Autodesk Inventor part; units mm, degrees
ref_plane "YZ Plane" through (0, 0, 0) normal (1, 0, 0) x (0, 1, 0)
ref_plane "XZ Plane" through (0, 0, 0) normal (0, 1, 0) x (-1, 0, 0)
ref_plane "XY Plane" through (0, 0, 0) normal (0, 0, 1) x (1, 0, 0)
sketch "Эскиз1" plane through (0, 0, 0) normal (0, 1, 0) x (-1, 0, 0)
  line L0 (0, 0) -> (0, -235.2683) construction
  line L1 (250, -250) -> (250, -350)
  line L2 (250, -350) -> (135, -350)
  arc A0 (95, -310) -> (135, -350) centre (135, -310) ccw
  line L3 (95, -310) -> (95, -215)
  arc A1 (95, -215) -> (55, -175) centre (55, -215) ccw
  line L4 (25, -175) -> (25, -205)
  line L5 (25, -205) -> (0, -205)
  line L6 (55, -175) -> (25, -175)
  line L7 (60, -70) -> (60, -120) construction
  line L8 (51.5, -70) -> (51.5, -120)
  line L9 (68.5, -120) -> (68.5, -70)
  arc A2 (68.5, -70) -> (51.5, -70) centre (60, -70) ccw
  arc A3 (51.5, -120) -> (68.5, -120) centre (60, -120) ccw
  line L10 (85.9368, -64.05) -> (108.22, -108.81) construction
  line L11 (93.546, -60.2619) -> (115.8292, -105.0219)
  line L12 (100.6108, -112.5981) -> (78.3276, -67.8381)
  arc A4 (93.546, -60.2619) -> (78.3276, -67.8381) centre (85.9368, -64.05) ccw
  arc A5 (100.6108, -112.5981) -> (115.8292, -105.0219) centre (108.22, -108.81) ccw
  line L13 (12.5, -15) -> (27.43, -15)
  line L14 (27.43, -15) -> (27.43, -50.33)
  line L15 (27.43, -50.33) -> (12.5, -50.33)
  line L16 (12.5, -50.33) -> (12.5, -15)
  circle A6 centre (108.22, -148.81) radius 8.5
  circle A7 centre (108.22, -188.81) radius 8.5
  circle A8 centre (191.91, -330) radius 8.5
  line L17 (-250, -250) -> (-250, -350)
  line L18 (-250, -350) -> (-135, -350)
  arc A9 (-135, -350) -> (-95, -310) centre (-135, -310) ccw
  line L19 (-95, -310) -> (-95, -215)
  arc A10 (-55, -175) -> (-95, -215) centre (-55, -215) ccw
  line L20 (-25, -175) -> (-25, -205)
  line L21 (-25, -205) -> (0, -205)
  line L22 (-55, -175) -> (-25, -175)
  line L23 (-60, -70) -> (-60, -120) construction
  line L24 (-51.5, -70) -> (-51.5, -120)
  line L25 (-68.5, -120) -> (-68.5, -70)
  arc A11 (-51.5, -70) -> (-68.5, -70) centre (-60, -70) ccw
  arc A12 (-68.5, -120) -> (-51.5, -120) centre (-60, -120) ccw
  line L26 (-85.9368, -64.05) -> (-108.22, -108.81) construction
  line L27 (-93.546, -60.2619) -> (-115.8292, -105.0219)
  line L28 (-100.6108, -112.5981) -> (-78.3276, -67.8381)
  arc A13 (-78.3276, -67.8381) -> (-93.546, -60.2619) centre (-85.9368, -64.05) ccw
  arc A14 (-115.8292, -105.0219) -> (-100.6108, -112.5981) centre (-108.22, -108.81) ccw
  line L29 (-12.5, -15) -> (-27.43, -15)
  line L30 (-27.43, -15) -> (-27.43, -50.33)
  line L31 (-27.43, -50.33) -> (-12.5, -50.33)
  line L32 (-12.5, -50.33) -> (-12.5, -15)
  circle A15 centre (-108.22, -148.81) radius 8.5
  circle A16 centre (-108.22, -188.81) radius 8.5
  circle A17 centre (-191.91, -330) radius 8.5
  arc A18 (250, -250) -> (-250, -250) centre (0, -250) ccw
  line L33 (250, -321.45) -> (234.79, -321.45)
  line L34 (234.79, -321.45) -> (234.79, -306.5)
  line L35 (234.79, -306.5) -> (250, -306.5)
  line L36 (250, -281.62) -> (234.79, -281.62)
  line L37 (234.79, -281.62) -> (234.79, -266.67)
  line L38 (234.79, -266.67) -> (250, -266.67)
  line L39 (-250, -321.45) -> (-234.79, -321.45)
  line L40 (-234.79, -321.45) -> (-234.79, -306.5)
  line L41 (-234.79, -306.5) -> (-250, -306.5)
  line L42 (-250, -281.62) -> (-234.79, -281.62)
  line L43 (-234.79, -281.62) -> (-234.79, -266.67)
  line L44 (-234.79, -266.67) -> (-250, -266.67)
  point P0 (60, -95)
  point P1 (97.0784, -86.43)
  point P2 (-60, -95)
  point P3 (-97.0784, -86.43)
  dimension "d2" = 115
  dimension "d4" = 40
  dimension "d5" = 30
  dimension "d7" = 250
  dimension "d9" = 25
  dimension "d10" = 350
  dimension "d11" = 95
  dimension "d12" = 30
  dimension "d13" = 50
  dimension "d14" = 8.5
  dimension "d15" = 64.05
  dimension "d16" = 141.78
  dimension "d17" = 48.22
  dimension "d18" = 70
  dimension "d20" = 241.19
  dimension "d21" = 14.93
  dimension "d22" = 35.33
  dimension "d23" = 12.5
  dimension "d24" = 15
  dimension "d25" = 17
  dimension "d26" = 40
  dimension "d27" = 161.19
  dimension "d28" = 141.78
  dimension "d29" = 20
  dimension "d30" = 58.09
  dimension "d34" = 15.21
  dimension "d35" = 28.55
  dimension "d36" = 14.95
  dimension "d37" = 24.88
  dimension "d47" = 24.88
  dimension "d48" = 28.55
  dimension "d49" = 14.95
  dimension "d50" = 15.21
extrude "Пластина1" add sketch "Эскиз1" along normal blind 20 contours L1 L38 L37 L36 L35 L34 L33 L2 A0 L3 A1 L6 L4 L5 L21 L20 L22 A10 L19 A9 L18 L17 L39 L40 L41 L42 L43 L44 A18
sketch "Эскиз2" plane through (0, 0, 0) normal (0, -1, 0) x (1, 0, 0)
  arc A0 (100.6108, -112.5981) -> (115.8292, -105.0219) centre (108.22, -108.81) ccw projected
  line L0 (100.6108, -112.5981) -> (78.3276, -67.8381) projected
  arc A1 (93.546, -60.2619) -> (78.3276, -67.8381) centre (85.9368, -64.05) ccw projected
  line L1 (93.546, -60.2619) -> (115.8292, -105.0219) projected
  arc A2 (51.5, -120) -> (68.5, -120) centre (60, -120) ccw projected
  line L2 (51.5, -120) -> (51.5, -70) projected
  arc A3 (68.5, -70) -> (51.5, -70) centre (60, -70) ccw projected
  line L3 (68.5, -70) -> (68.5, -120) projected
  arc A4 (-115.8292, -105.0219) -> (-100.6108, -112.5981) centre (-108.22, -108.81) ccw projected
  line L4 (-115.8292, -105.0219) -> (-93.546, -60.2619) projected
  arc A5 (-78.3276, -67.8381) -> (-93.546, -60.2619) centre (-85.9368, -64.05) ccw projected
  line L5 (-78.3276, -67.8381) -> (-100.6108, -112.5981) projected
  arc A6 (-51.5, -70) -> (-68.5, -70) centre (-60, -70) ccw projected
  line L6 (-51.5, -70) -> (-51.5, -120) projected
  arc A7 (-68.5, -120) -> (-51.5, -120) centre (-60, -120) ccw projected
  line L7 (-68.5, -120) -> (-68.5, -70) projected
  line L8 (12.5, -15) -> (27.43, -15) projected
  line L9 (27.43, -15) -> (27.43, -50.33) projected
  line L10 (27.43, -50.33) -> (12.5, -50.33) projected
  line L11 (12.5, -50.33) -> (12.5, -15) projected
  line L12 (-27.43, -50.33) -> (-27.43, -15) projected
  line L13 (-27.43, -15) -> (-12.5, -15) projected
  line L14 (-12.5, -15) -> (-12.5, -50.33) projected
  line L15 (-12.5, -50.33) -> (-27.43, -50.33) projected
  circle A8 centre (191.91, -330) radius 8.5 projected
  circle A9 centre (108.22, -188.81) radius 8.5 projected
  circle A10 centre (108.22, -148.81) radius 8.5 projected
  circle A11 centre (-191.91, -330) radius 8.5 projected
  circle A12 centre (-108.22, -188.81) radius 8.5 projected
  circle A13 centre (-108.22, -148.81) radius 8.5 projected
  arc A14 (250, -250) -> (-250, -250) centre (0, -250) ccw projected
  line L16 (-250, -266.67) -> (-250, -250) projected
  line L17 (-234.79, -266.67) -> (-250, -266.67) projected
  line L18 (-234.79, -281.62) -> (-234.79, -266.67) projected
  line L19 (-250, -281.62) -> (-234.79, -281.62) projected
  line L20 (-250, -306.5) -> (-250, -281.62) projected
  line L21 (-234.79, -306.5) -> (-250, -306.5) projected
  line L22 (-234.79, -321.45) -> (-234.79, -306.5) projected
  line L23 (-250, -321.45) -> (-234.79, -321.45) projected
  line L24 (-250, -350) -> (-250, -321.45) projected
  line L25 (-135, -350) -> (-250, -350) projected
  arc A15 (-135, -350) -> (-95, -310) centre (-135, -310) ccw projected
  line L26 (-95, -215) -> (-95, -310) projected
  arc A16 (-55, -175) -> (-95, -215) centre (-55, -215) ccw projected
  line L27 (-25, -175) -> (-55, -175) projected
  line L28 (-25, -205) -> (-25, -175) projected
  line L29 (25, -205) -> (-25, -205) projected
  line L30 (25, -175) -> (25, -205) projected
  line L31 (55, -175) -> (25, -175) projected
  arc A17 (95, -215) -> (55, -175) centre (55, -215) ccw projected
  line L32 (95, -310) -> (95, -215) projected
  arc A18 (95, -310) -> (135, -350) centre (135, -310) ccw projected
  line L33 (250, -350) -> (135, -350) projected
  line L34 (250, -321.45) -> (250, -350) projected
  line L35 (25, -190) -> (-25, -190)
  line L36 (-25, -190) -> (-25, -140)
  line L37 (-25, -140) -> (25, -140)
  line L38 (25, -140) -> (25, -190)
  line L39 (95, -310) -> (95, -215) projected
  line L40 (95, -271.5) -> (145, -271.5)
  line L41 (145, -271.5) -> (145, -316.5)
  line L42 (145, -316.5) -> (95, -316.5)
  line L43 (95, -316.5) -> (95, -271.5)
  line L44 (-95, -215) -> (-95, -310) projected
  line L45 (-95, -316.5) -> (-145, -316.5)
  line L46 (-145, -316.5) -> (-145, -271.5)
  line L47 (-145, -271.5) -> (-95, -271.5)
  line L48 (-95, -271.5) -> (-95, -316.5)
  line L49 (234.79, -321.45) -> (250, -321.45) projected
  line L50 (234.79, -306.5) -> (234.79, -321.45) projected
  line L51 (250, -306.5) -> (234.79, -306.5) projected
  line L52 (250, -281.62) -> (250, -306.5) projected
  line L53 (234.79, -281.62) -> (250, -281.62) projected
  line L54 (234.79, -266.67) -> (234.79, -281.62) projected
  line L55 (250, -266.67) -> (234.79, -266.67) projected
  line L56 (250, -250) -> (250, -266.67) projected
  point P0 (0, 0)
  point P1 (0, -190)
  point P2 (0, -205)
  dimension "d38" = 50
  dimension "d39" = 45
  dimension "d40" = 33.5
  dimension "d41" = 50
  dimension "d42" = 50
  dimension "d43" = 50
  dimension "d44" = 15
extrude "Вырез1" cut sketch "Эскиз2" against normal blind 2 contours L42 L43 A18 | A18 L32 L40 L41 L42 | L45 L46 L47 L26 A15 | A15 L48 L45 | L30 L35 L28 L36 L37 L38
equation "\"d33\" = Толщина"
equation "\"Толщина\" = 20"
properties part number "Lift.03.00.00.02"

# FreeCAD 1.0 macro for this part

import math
import FreeCAD as App
import Part
import Sketcher
Q = App.Units.Quantity


def add_polygon(sketch, points):
    """Adds a closed chain of lines whose ends are joined by coincident constraints."""
    first, n = sketch.GeometryCount, len(points)
    for a, b in zip(points, points[1:] + points[:1]):
        sketch.addGeometry(Part.LineSegment(App.Vector(*a, 0), App.Vector(*b, 0)), False)
    for i in range(n):
        sketch.addConstraint(Sketcher.Constraint("Coincident", first + i, 2, first + (i + 1) % n, 1))

doc = App.newDocument("Part")
body = doc.addObject("PartDesign::Body", "Body")

# Sketch on XZ plane
sketch1 = body.newObject("Sketcher::SketchObject", "Sketch")
sketch1.AttachmentSupport = (doc.getObject("XZ_Plane"), [""])
sketch1.MapMode = "FlatFace"
sketch1.addGeometry(Part.LineSegment(App.Vector(-250, -266.67, 0), App.Vector(-250, -250, 0)), False)  # 0
sketch1.addGeometry(Part.ArcOfCircle(Part.Circle(App.Vector(0, -250, 0), App.Vector(0, 0, 1), 250), math.radians(0), math.radians(180)), False)  # 1
sketch1.addGeometry(Part.LineSegment(App.Vector(250, -250, 0), App.Vector(250, -266.67, 0)), False)  # 2
sketch1.addGeometry(Part.LineSegment(App.Vector(250, -266.67, 0), App.Vector(234.79, -266.67, 0)), False)  # 3
sketch1.addGeometry(Part.LineSegment(App.Vector(234.79, -266.67, 0), App.Vector(234.79, -281.62, 0)), False)  # 4
sketch1.addGeometry(Part.LineSegment(App.Vector(234.79, -281.62, 0), App.Vector(250, -281.62, 0)), False)  # 5
sketch1.addGeometry(Part.LineSegment(App.Vector(250, -281.62, 0), App.Vector(250, -306.5, 0)), False)  # 6
sketch1.addGeometry(Part.LineSegment(App.Vector(250, -306.5, 0), App.Vector(234.79, -306.5, 0)), False)  # 7
sketch1.addGeometry(Part.LineSegment(App.Vector(234.79, -306.5, 0), App.Vector(234.79, -321.45, 0)), False)  # 8
sketch1.addGeometry(Part.LineSegment(App.Vector(234.79, -321.45, 0), App.Vector(250, -321.45, 0)), False)  # 9
sketch1.addGeometry(Part.LineSegment(App.Vector(250, -321.45, 0), App.Vector(250, -350, 0)), False)  # 10
sketch1.addGeometry(Part.LineSegment(App.Vector(250, -350, 0), App.Vector(135, -350, 0)), False)  # 11
sketch1.addGeometry(Part.ArcOfCircle(Part.Circle(App.Vector(135, -310, 0), App.Vector(0, 0, 1), 40), math.radians(180), math.radians(270)), False)  # 12
sketch1.addGeometry(Part.LineSegment(App.Vector(95, -310, 0), App.Vector(95, -215, 0)), False)  # 13
sketch1.addGeometry(Part.ArcOfCircle(Part.Circle(App.Vector(55, -215, 0), App.Vector(0, 0, 1), 40), math.radians(0), math.radians(90)), False)  # 14
sketch1.addGeometry(Part.LineSegment(App.Vector(55, -175, 0), App.Vector(25, -175, 0)), False)  # 15
sketch1.addGeometry(Part.LineSegment(App.Vector(25, -175, 0), App.Vector(25, -205, 0)), False)  # 16
sketch1.addGeometry(Part.LineSegment(App.Vector(25, -205, 0), App.Vector(-25, -205, 0)), False)  # 17
sketch1.addGeometry(Part.LineSegment(App.Vector(-25, -205, 0), App.Vector(-25, -175, 0)), False)  # 18
sketch1.addGeometry(Part.LineSegment(App.Vector(-25, -175, 0), App.Vector(-55, -175, 0)), False)  # 19
sketch1.addGeometry(Part.ArcOfCircle(Part.Circle(App.Vector(-55, -215, 0), App.Vector(0, 0, 1), 40), math.radians(90), math.radians(180)), False)  # 20
sketch1.addGeometry(Part.LineSegment(App.Vector(-95, -215, 0), App.Vector(-95, -310, 0)), False)  # 21
sketch1.addGeometry(Part.ArcOfCircle(Part.Circle(App.Vector(-135, -310, 0), App.Vector(0, 0, 1), 40), math.radians(-90), math.radians(0)), False)  # 22
sketch1.addGeometry(Part.LineSegment(App.Vector(-135, -350, 0), App.Vector(-250, -350, 0)), False)  # 23
sketch1.addGeometry(Part.LineSegment(App.Vector(-250, -350, 0), App.Vector(-250, -321.45, 0)), False)  # 24
sketch1.addGeometry(Part.LineSegment(App.Vector(-250, -321.45, 0), App.Vector(-234.79, -321.45, 0)), False)  # 25
sketch1.addGeometry(Part.LineSegment(App.Vector(-234.79, -321.45, 0), App.Vector(-234.79, -306.5, 0)), False)  # 26
sketch1.addGeometry(Part.LineSegment(App.Vector(-234.79, -306.5, 0), App.Vector(-250, -306.5, 0)), False)  # 27
sketch1.addGeometry(Part.LineSegment(App.Vector(-250, -306.5, 0), App.Vector(-250, -281.62, 0)), False)  # 28
sketch1.addGeometry(Part.LineSegment(App.Vector(-250, -281.62, 0), App.Vector(-234.79, -281.62, 0)), False)  # 29
sketch1.addGeometry(Part.LineSegment(App.Vector(-234.79, -281.62, 0), App.Vector(-234.79, -266.67, 0)), False)  # 30
sketch1.addGeometry(Part.LineSegment(App.Vector(-234.79, -266.67, 0), App.Vector(-250, -266.67, 0)), False)  # 31
sketch1.addGeometry(Part.Circle(App.Vector(191.91, -330, 0), App.Vector(0, 0, 1), 8.5), False)  # 32
sketch1.addGeometry(Part.Circle(App.Vector(108.22, -188.81, 0), App.Vector(0, 0, 1), 8.5), False)  # 33
sketch1.addGeometry(Part.Circle(App.Vector(-191.91, -330, 0), App.Vector(0, 0, 1), 8.5), False)  # 34
sketch1.addGeometry(Part.Circle(App.Vector(-108.22, -188.81, 0), App.Vector(0, 0, 1), 8.5), False)  # 35
sketch1.addGeometry(Part.Circle(App.Vector(108.22, -148.81, 0), App.Vector(0, 0, 1), 8.5), False)  # 36
sketch1.addGeometry(Part.ArcOfCircle(Part.Circle(App.Vector(60, -70, 0), App.Vector(0, 0, 1), 8.5), math.radians(0), math.radians(180)), False)  # 37
sketch1.addGeometry(Part.LineSegment(App.Vector(51.5, -70, 0), App.Vector(51.5, -120, 0)), False)  # 38
sketch1.addGeometry(Part.ArcOfCircle(Part.Circle(App.Vector(60, -120, 0), App.Vector(0, 0, 1), 8.5), math.radians(180), math.radians(360)), False)  # 39
sketch1.addGeometry(Part.LineSegment(App.Vector(68.5, -120, 0), App.Vector(68.5, -70, 0)), False)  # 40
sketch1.addGeometry(Part.LineSegment(App.Vector(115.8292, -105.0219, 0), App.Vector(93.546, -60.2619, 0)), False)  # 41
sketch1.addGeometry(Part.ArcOfCircle(Part.Circle(App.Vector(85.9368, -64.05, 0), App.Vector(0, 0, 1), 8.499978), math.radians(26.465572), math.radians(206.465572)), False)  # 42
sketch1.addGeometry(Part.LineSegment(App.Vector(78.3276, -67.8381, 0), App.Vector(100.6108, -112.5981, 0)), False)  # 43
sketch1.addGeometry(Part.ArcOfCircle(Part.Circle(App.Vector(108.22, -108.81, 0), App.Vector(0, 0, 1), 8.499978), math.radians(-153.534428), math.radians(26.465572)), False)  # 44
add_polygon(sketch1, [(27.43, -15), (12.5, -15), (12.5, -50.33), (27.43, -50.33)])  # lines 45-48
sketch1.addGeometry(Part.Circle(App.Vector(-108.22, -148.81, 0), App.Vector(0, 0, 1), 8.5), False)  # 49
sketch1.addGeometry(Part.LineSegment(App.Vector(-51.5, -120, 0), App.Vector(-51.5, -70, 0)), False)  # 50
sketch1.addGeometry(Part.ArcOfCircle(Part.Circle(App.Vector(-60, -70, 0), App.Vector(0, 0, 1), 8.5), math.radians(0), math.radians(180)), False)  # 51
sketch1.addGeometry(Part.LineSegment(App.Vector(-68.5, -70, 0), App.Vector(-68.5, -120, 0)), False)  # 52
sketch1.addGeometry(Part.ArcOfCircle(Part.Circle(App.Vector(-60, -120, 0), App.Vector(0, 0, 1), 8.5), math.radians(180), math.radians(360)), False)  # 53
sketch1.addGeometry(Part.ArcOfCircle(Part.Circle(App.Vector(-85.9368, -64.05, 0), App.Vector(0, 0, 1), 8.499978), math.radians(-26.465572), math.radians(153.534428)), False)  # 54
sketch1.addGeometry(Part.LineSegment(App.Vector(-93.546, -60.2619, 0), App.Vector(-115.8292, -105.0219, 0)), False)  # 55
sketch1.addGeometry(Part.ArcOfCircle(Part.Circle(App.Vector(-108.22, -108.81, 0), App.Vector(0, 0, 1), 8.499978), math.radians(153.534428), math.radians(333.534428)), False)  # 56
sketch1.addGeometry(Part.LineSegment(App.Vector(-100.6108, -112.5981, 0), App.Vector(-78.3276, -67.8381, 0)), False)  # 57
add_polygon(sketch1, [(-12.5, -50.33), (-12.5, -15), (-27.43, -15), (-27.43, -50.33)])  # lines 58-61
sketch1.addConstraint(Sketcher.Constraint("Tangent", 0, 2, 1, 2))
sketch1.addConstraint(Sketcher.Constraint("Tangent", 1, 1, 2, 1))
sketch1.addConstraint(Sketcher.Constraint("Coincident", 2, 2, 3, 1))
sketch1.addConstraint(Sketcher.Constraint("Coincident", 3, 2, 4, 1))
sketch1.addConstraint(Sketcher.Constraint("Coincident", 4, 2, 5, 1))
sketch1.addConstraint(Sketcher.Constraint("Coincident", 5, 2, 6, 1))
sketch1.addConstraint(Sketcher.Constraint("Coincident", 6, 2, 7, 1))
sketch1.addConstraint(Sketcher.Constraint("Coincident", 7, 2, 8, 1))
sketch1.addConstraint(Sketcher.Constraint("Coincident", 8, 2, 9, 1))
sketch1.addConstraint(Sketcher.Constraint("Coincident", 9, 2, 10, 1))
sketch1.addConstraint(Sketcher.Constraint("Coincident", 10, 2, 11, 1))
sketch1.addConstraint(Sketcher.Constraint("Tangent", 11, 2, 12, 2))
sketch1.addConstraint(Sketcher.Constraint("Tangent", 12, 1, 13, 1))
sketch1.addConstraint(Sketcher.Constraint("Tangent", 13, 2, 14, 1))
sketch1.addConstraint(Sketcher.Constraint("Tangent", 14, 2, 15, 1))
sketch1.addConstraint(Sketcher.Constraint("Coincident", 15, 2, 16, 1))
sketch1.addConstraint(Sketcher.Constraint("Coincident", 16, 2, 17, 1))
sketch1.addConstraint(Sketcher.Constraint("Coincident", 17, 2, 18, 1))
sketch1.addConstraint(Sketcher.Constraint("Coincident", 18, 2, 19, 1))
sketch1.addConstraint(Sketcher.Constraint("Tangent", 19, 2, 20, 1))
sketch1.addConstraint(Sketcher.Constraint("Tangent", 20, 2, 21, 1))
sketch1.addConstraint(Sketcher.Constraint("Tangent", 21, 2, 22, 2))
sketch1.addConstraint(Sketcher.Constraint("Tangent", 22, 1, 23, 1))
sketch1.addConstraint(Sketcher.Constraint("Coincident", 23, 2, 24, 1))
sketch1.addConstraint(Sketcher.Constraint("Coincident", 24, 2, 25, 1))
sketch1.addConstraint(Sketcher.Constraint("Coincident", 25, 2, 26, 1))
sketch1.addConstraint(Sketcher.Constraint("Coincident", 26, 2, 27, 1))
sketch1.addConstraint(Sketcher.Constraint("Coincident", 27, 2, 28, 1))
sketch1.addConstraint(Sketcher.Constraint("Coincident", 28, 2, 29, 1))
sketch1.addConstraint(Sketcher.Constraint("Coincident", 29, 2, 30, 1))
sketch1.addConstraint(Sketcher.Constraint("Coincident", 30, 2, 31, 1))
sketch1.addConstraint(Sketcher.Constraint("Coincident", 31, 2, 0, 1))
sketch1.addConstraint(Sketcher.Constraint("Tangent", 37, 2, 38, 1))
sketch1.addConstraint(Sketcher.Constraint("Tangent", 38, 2, 39, 1))
sketch1.addConstraint(Sketcher.Constraint("Tangent", 39, 2, 40, 1))
sketch1.addConstraint(Sketcher.Constraint("Tangent", 40, 2, 37, 1))
sketch1.addConstraint(Sketcher.Constraint("Tangent", 41, 2, 42, 1))
sketch1.addConstraint(Sketcher.Constraint("Tangent", 42, 2, 43, 1))
sketch1.addConstraint(Sketcher.Constraint("Tangent", 43, 2, 44, 1))
sketch1.addConstraint(Sketcher.Constraint("Tangent", 44, 2, 41, 1))
sketch1.addConstraint(Sketcher.Constraint("Tangent", 50, 2, 51, 1))
sketch1.addConstraint(Sketcher.Constraint("Tangent", 51, 2, 52, 1))
sketch1.addConstraint(Sketcher.Constraint("Tangent", 52, 2, 53, 1))
sketch1.addConstraint(Sketcher.Constraint("Tangent", 53, 2, 50, 1))
sketch1.addConstraint(Sketcher.Constraint("Tangent", 54, 2, 55, 1))
sketch1.addConstraint(Sketcher.Constraint("Tangent", 55, 2, 56, 1))
sketch1.addConstraint(Sketcher.Constraint("Tangent", 56, 2, 57, 1))
sketch1.addConstraint(Sketcher.Constraint("Tangent", 57, 2, 54, 1))
sketch1.addConstraint(Sketcher.Constraint("Vertical", 0))
sketch1.addConstraint(Sketcher.Constraint("Vertical", 2))
sketch1.addConstraint(Sketcher.Constraint("Horizontal", 3))
sketch1.addConstraint(Sketcher.Constraint("Vertical", 4))
sketch1.addConstraint(Sketcher.Constraint("Horizontal", 5))
sketch1.addConstraint(Sketcher.Constraint("Vertical", 6))
sketch1.addConstraint(Sketcher.Constraint("Horizontal", 7))
sketch1.addConstraint(Sketcher.Constraint("Vertical", 8))
sketch1.addConstraint(Sketcher.Constraint("Horizontal", 9))
sketch1.addConstraint(Sketcher.Constraint("Vertical", 10))
sketch1.addConstraint(Sketcher.Constraint("Horizontal", 11))
sketch1.addConstraint(Sketcher.Constraint("Vertical", 13))
sketch1.addConstraint(Sketcher.Constraint("Horizontal", 15))
sketch1.addConstraint(Sketcher.Constraint("Vertical", 16))
sketch1.addConstraint(Sketcher.Constraint("Horizontal", 17))
sketch1.addConstraint(Sketcher.Constraint("Vertical", 18))
sketch1.addConstraint(Sketcher.Constraint("Horizontal", 19))
sketch1.addConstraint(Sketcher.Constraint("Vertical", 21))
sketch1.addConstraint(Sketcher.Constraint("Horizontal", 23))
sketch1.addConstraint(Sketcher.Constraint("Vertical", 24))
sketch1.addConstraint(Sketcher.Constraint("Horizontal", 25))
sketch1.addConstraint(Sketcher.Constraint("Vertical", 26))
sketch1.addConstraint(Sketcher.Constraint("Horizontal", 27))
sketch1.addConstraint(Sketcher.Constraint("Vertical", 28))
sketch1.addConstraint(Sketcher.Constraint("Horizontal", 29))
sketch1.addConstraint(Sketcher.Constraint("Vertical", 30))
sketch1.addConstraint(Sketcher.Constraint("Horizontal", 31))
sketch1.addConstraint(Sketcher.Constraint("Vertical", 38))
sketch1.addConstraint(Sketcher.Constraint("Vertical", 40))
sketch1.addConstraint(Sketcher.Constraint("Horizontal", 45))
sketch1.addConstraint(Sketcher.Constraint("Vertical", 46))
sketch1.addConstraint(Sketcher.Constraint("Horizontal", 47))
sketch1.addConstraint(Sketcher.Constraint("Vertical", 48))
sketch1.addConstraint(Sketcher.Constraint("Vertical", 50))
sketch1.addConstraint(Sketcher.Constraint("Vertical", 52))
sketch1.addConstraint(Sketcher.Constraint("Vertical", 58))
sketch1.addConstraint(Sketcher.Constraint("Horizontal", 59))
sketch1.addConstraint(Sketcher.Constraint("Vertical", 60))
sketch1.addConstraint(Sketcher.Constraint("Horizontal", 61))
sketch1.addConstraint(Sketcher.Constraint("Equal", 12, 14))
sketch1.addConstraint(Sketcher.Constraint("Equal", 14, 20))
sketch1.addConstraint(Sketcher.Constraint("Equal", 20, 22))
sketch1.addConstraint(Sketcher.Constraint("Equal", 32, 33))
sketch1.addConstraint(Sketcher.Constraint("Equal", 33, 34))
sketch1.addConstraint(Sketcher.Constraint("Equal", 34, 35))
sketch1.addConstraint(Sketcher.Constraint("Equal", 35, 36))
sketch1.addConstraint(Sketcher.Constraint("Equal", 36, 37))
sketch1.addConstraint(Sketcher.Constraint("Equal", 39, 42))
sketch1.addConstraint(Sketcher.Constraint("Equal", 42, 44))
sketch1.addConstraint(Sketcher.Constraint("Equal", 44, 49))
sketch1.addConstraint(Sketcher.Constraint("Equal", 49, 51))
sketch1.addConstraint(Sketcher.Constraint("Equal", 53, 54))
sketch1.addConstraint(Sketcher.Constraint("Equal", 54, 56))
sketch1.addConstraint(Sketcher.Constraint("Symmetric", 14, 3, 20, 3, -2))
sketch1.addConstraint(Sketcher.Constraint("Symmetric", 32, 3, 34, 3, -2))
sketch1.addConstraint(Sketcher.Constraint("Symmetric", 33, 3, 35, 3, -2))
sketch1.addConstraint(Sketcher.Constraint("Symmetric", 36, 3, 49, 3, -2))
sketch1.addConstraint(Sketcher.Constraint("Symmetric", 37, 3, 51, 3, -2))
sketch1.addConstraint(Sketcher.Constraint("Symmetric", 42, 3, 54, 3, -2))
sketch1.addConstraint(Sketcher.Constraint("Symmetric", 44, 3, 56, 3, -2))
sketch1.addConstraint(Sketcher.Constraint("Symmetric", 10, 2, 23, 2, -2))
sketch1.addConstraint(Sketcher.Constraint("Symmetric", 8, 2, 25, 2, -2))
sketch1.addConstraint(Sketcher.Constraint("Symmetric", 6, 2, 27, 2, -2))
sketch1.addConstraint(Sketcher.Constraint("Symmetric", 4, 2, 29, 2, -2))
sketch1.addConstraint(Sketcher.Constraint("Symmetric", 2, 2, 31, 2, -2))
sketch1.addConstraint(Sketcher.Constraint("Symmetric", 45, 2, 58, 2, -2))
sketch1.addConstraint(Sketcher.Constraint("Symmetric", 47, 2, 60, 2, -2))
sketch1.addConstraint(Sketcher.Constraint("Horizontal", 39, 3, 53, 3))
sketch1.addConstraint(Sketcher.Constraint("Vertical", 33, 3, 36, 3))
sketch1.addConstraint(Sketcher.Constraint("Vertical", 36, 3, 44, 3))
sketch1.addConstraint(Sketcher.Constraint("Vertical", 2, 2, 5, 2))
sketch1.addConstraint(Sketcher.Constraint("Vertical", 4, 2, 7, 2))
sketch1.addConstraint(Sketcher.Constraint("Vertical", 6, 2, 9, 2))
sketch1.addConstraint(Sketcher.Constraint("Equal", 15, 19))
sketch1.addConstraint(Sketcher.Constraint("Equal", 4, 8))
sketch1.addConstraint(Sketcher.Constraint("Equal", 19, 16))
sketch1.addConstraint(Sketcher.Constraint("Equal", 17, 38))
sketch1.addConstraint(Sketcher.Constraint("Diameter", 32, Q("17 mm")))
sketch1.addConstraint(Sketcher.Constraint("Radius", 1, Q("250 mm")))
sketch1.addConstraint(Sketcher.Constraint("Radius", 12, Q("40 mm")))
sketch1.addConstraint(Sketcher.Constraint("DistanceX", 11, 2, 11, 1, Q("115 mm")))
sketch1.addConstraint(Sketcher.Constraint("DistanceX", 15, 2, 15, 1, Q("30 mm")))
sketch1.addConstraint(Sketcher.Constraint("DistanceY", 13, 1, 13, 2, Q("95 mm")))
sketch1.addConstraint(Sketcher.Constraint("Distance", 41, Q("50 mm")))
sketch1.addConstraint(Sketcher.Constraint("DistanceY", 1, 3, -1, 1, Q("250 mm")))
sketch1.addConstraint(Sketcher.Constraint("DistanceY", 37, 3, -1, 1, Q("70 mm")))
sketch1.addConstraint(Sketcher.Constraint("DistanceY", 10, 2, -1, 1, Q("350 mm")))
sketch1.addConstraint(Sketcher.Constraint("DistanceY", 45, 2, -1, 1, Q("15 mm")))
sketch1.addConstraint(Sketcher.Constraint("DistanceX", 3, 2, 3, 1, Q("15.21 mm")))
sketch1.addConstraint(Sketcher.Constraint("DistanceX", 45, 2, 45, 1, Q("14.93 mm")))
sketch1.addConstraint(Sketcher.Constraint("DistanceY", 4, 2, 4, 1, Q("14.95 mm")))
sketch1.addConstraint(Sketcher.Constraint("DistanceY", 6, 2, 6, 1, Q("24.88 mm")))
sketch1.addConstraint(Sketcher.Constraint("DistanceY", 10, 2, 10, 1, Q("28.55 mm")))
sketch1.addConstraint(Sketcher.Constraint("DistanceY", 46, 2, 46, 1, Q("35.33 mm")))
sketch1.addConstraint(Sketcher.Constraint("DistanceX", -1, 1, 45, 2, Q("12.5 mm")))
sketch1.addConstraint(Sketcher.Constraint("DistanceY", 42, 3, -1, 1, Q("64.05 mm")))
sketch1.addConstraint(Sketcher.Constraint("DistanceY", 32, 3, -1, 1, Q("330 mm")))
sketch1.addConstraint(Sketcher.Constraint("DistanceX", -1, 1, 37, 3, Q("60 mm")))
sketch1.addConstraint(Sketcher.Constraint("DistanceX", -1, 1, 32, 3, Q("191.91 mm")))
sketch1.addConstraint(Sketcher.Constraint("DistanceX", -1, 1, 33, 3, Q("108.22 mm")))
sketch1.addConstraint(Sketcher.Constraint("DistanceY", 33, 3, -1, 1, Q("188.81 mm")))
sketch1.addConstraint(Sketcher.Constraint("DistanceY", 36, 3, -1, 1, Q("148.81 mm")))
sketch1.addConstraint(Sketcher.Constraint("DistanceY", 44, 3, -1, 1, Q("108.81 mm")))
pad1 = body.newObject("PartDesign::Pad", "Pad")
pad1.Profile = sketch1
pad1.Length = 20
pad1.Reversed = True

# Sketch on XZ plane
sketch2 = body.newObject("Sketcher::SketchObject", "Sketch001")
sketch2.AttachmentSupport = (doc.getObject("XZ_Plane"), [""])
sketch2.MapMode = "FlatFace"
add_polygon(sketch2, [(95, -316.5), (145, -316.5), (145, -271.5), (95, -271.5)])  # lines 0-3
add_polygon(sketch2, [(-145, -316.5), (-95, -316.5), (-95, -271.5), (-145, -271.5)])  # lines 4-7
add_polygon(sketch2, [(25, -190), (25, -140), (-25, -140), (-25, -190)])  # lines 8-11
sketch2.addConstraint(Sketcher.Constraint("Horizontal", 0))
sketch2.addConstraint(Sketcher.Constraint("Vertical", 1))
sketch2.addConstraint(Sketcher.Constraint("Horizontal", 2))
sketch2.addConstraint(Sketcher.Constraint("Vertical", 3))
sketch2.addConstraint(Sketcher.Constraint("Horizontal", 4))
sketch2.addConstraint(Sketcher.Constraint("Vertical", 5))
sketch2.addConstraint(Sketcher.Constraint("Horizontal", 6))
sketch2.addConstraint(Sketcher.Constraint("Vertical", 7))
sketch2.addConstraint(Sketcher.Constraint("Vertical", 8))
sketch2.addConstraint(Sketcher.Constraint("Horizontal", 9))
sketch2.addConstraint(Sketcher.Constraint("Vertical", 10))
sketch2.addConstraint(Sketcher.Constraint("Horizontal", 11))
sketch2.addConstraint(Sketcher.Constraint("Symmetric", 3, 2, 4, 2, -2))
sketch2.addConstraint(Sketcher.Constraint("Symmetric", 1, 2, 6, 2, -2))
sketch2.addConstraint(Sketcher.Constraint("Equal", 6, 9))
sketch2.addConstraint(Sketcher.Constraint("Equal", 11, 8))
sketch2.addConstraint(Sketcher.Constraint("DistanceX", 0, 1, 0, 2, Q("50 mm")))
sketch2.addConstraint(Sketcher.Constraint("DistanceY", 1, 1, 1, 2, Q("45 mm")))
sketch2.addConstraint(Sketcher.Constraint("DistanceX", -1, 1, 0, 2, Q("145 mm")))
sketch2.addConstraint(Sketcher.Constraint("DistanceX", -1, 1, 8, 2, Q("25 mm")))
sketch2.addConstraint(Sketcher.Constraint("DistanceY", 8, 2, -1, 1, Q("140 mm")))
sketch2.addConstraint(Sketcher.Constraint("DistanceY", 0, 2, -1, 1, Q("316.5 mm")))
pocket1 = body.newObject("PartDesign::Pocket", "Pocket")
pocket1.Profile = sketch2
pocket1.Length = 2

doc.recompute()
